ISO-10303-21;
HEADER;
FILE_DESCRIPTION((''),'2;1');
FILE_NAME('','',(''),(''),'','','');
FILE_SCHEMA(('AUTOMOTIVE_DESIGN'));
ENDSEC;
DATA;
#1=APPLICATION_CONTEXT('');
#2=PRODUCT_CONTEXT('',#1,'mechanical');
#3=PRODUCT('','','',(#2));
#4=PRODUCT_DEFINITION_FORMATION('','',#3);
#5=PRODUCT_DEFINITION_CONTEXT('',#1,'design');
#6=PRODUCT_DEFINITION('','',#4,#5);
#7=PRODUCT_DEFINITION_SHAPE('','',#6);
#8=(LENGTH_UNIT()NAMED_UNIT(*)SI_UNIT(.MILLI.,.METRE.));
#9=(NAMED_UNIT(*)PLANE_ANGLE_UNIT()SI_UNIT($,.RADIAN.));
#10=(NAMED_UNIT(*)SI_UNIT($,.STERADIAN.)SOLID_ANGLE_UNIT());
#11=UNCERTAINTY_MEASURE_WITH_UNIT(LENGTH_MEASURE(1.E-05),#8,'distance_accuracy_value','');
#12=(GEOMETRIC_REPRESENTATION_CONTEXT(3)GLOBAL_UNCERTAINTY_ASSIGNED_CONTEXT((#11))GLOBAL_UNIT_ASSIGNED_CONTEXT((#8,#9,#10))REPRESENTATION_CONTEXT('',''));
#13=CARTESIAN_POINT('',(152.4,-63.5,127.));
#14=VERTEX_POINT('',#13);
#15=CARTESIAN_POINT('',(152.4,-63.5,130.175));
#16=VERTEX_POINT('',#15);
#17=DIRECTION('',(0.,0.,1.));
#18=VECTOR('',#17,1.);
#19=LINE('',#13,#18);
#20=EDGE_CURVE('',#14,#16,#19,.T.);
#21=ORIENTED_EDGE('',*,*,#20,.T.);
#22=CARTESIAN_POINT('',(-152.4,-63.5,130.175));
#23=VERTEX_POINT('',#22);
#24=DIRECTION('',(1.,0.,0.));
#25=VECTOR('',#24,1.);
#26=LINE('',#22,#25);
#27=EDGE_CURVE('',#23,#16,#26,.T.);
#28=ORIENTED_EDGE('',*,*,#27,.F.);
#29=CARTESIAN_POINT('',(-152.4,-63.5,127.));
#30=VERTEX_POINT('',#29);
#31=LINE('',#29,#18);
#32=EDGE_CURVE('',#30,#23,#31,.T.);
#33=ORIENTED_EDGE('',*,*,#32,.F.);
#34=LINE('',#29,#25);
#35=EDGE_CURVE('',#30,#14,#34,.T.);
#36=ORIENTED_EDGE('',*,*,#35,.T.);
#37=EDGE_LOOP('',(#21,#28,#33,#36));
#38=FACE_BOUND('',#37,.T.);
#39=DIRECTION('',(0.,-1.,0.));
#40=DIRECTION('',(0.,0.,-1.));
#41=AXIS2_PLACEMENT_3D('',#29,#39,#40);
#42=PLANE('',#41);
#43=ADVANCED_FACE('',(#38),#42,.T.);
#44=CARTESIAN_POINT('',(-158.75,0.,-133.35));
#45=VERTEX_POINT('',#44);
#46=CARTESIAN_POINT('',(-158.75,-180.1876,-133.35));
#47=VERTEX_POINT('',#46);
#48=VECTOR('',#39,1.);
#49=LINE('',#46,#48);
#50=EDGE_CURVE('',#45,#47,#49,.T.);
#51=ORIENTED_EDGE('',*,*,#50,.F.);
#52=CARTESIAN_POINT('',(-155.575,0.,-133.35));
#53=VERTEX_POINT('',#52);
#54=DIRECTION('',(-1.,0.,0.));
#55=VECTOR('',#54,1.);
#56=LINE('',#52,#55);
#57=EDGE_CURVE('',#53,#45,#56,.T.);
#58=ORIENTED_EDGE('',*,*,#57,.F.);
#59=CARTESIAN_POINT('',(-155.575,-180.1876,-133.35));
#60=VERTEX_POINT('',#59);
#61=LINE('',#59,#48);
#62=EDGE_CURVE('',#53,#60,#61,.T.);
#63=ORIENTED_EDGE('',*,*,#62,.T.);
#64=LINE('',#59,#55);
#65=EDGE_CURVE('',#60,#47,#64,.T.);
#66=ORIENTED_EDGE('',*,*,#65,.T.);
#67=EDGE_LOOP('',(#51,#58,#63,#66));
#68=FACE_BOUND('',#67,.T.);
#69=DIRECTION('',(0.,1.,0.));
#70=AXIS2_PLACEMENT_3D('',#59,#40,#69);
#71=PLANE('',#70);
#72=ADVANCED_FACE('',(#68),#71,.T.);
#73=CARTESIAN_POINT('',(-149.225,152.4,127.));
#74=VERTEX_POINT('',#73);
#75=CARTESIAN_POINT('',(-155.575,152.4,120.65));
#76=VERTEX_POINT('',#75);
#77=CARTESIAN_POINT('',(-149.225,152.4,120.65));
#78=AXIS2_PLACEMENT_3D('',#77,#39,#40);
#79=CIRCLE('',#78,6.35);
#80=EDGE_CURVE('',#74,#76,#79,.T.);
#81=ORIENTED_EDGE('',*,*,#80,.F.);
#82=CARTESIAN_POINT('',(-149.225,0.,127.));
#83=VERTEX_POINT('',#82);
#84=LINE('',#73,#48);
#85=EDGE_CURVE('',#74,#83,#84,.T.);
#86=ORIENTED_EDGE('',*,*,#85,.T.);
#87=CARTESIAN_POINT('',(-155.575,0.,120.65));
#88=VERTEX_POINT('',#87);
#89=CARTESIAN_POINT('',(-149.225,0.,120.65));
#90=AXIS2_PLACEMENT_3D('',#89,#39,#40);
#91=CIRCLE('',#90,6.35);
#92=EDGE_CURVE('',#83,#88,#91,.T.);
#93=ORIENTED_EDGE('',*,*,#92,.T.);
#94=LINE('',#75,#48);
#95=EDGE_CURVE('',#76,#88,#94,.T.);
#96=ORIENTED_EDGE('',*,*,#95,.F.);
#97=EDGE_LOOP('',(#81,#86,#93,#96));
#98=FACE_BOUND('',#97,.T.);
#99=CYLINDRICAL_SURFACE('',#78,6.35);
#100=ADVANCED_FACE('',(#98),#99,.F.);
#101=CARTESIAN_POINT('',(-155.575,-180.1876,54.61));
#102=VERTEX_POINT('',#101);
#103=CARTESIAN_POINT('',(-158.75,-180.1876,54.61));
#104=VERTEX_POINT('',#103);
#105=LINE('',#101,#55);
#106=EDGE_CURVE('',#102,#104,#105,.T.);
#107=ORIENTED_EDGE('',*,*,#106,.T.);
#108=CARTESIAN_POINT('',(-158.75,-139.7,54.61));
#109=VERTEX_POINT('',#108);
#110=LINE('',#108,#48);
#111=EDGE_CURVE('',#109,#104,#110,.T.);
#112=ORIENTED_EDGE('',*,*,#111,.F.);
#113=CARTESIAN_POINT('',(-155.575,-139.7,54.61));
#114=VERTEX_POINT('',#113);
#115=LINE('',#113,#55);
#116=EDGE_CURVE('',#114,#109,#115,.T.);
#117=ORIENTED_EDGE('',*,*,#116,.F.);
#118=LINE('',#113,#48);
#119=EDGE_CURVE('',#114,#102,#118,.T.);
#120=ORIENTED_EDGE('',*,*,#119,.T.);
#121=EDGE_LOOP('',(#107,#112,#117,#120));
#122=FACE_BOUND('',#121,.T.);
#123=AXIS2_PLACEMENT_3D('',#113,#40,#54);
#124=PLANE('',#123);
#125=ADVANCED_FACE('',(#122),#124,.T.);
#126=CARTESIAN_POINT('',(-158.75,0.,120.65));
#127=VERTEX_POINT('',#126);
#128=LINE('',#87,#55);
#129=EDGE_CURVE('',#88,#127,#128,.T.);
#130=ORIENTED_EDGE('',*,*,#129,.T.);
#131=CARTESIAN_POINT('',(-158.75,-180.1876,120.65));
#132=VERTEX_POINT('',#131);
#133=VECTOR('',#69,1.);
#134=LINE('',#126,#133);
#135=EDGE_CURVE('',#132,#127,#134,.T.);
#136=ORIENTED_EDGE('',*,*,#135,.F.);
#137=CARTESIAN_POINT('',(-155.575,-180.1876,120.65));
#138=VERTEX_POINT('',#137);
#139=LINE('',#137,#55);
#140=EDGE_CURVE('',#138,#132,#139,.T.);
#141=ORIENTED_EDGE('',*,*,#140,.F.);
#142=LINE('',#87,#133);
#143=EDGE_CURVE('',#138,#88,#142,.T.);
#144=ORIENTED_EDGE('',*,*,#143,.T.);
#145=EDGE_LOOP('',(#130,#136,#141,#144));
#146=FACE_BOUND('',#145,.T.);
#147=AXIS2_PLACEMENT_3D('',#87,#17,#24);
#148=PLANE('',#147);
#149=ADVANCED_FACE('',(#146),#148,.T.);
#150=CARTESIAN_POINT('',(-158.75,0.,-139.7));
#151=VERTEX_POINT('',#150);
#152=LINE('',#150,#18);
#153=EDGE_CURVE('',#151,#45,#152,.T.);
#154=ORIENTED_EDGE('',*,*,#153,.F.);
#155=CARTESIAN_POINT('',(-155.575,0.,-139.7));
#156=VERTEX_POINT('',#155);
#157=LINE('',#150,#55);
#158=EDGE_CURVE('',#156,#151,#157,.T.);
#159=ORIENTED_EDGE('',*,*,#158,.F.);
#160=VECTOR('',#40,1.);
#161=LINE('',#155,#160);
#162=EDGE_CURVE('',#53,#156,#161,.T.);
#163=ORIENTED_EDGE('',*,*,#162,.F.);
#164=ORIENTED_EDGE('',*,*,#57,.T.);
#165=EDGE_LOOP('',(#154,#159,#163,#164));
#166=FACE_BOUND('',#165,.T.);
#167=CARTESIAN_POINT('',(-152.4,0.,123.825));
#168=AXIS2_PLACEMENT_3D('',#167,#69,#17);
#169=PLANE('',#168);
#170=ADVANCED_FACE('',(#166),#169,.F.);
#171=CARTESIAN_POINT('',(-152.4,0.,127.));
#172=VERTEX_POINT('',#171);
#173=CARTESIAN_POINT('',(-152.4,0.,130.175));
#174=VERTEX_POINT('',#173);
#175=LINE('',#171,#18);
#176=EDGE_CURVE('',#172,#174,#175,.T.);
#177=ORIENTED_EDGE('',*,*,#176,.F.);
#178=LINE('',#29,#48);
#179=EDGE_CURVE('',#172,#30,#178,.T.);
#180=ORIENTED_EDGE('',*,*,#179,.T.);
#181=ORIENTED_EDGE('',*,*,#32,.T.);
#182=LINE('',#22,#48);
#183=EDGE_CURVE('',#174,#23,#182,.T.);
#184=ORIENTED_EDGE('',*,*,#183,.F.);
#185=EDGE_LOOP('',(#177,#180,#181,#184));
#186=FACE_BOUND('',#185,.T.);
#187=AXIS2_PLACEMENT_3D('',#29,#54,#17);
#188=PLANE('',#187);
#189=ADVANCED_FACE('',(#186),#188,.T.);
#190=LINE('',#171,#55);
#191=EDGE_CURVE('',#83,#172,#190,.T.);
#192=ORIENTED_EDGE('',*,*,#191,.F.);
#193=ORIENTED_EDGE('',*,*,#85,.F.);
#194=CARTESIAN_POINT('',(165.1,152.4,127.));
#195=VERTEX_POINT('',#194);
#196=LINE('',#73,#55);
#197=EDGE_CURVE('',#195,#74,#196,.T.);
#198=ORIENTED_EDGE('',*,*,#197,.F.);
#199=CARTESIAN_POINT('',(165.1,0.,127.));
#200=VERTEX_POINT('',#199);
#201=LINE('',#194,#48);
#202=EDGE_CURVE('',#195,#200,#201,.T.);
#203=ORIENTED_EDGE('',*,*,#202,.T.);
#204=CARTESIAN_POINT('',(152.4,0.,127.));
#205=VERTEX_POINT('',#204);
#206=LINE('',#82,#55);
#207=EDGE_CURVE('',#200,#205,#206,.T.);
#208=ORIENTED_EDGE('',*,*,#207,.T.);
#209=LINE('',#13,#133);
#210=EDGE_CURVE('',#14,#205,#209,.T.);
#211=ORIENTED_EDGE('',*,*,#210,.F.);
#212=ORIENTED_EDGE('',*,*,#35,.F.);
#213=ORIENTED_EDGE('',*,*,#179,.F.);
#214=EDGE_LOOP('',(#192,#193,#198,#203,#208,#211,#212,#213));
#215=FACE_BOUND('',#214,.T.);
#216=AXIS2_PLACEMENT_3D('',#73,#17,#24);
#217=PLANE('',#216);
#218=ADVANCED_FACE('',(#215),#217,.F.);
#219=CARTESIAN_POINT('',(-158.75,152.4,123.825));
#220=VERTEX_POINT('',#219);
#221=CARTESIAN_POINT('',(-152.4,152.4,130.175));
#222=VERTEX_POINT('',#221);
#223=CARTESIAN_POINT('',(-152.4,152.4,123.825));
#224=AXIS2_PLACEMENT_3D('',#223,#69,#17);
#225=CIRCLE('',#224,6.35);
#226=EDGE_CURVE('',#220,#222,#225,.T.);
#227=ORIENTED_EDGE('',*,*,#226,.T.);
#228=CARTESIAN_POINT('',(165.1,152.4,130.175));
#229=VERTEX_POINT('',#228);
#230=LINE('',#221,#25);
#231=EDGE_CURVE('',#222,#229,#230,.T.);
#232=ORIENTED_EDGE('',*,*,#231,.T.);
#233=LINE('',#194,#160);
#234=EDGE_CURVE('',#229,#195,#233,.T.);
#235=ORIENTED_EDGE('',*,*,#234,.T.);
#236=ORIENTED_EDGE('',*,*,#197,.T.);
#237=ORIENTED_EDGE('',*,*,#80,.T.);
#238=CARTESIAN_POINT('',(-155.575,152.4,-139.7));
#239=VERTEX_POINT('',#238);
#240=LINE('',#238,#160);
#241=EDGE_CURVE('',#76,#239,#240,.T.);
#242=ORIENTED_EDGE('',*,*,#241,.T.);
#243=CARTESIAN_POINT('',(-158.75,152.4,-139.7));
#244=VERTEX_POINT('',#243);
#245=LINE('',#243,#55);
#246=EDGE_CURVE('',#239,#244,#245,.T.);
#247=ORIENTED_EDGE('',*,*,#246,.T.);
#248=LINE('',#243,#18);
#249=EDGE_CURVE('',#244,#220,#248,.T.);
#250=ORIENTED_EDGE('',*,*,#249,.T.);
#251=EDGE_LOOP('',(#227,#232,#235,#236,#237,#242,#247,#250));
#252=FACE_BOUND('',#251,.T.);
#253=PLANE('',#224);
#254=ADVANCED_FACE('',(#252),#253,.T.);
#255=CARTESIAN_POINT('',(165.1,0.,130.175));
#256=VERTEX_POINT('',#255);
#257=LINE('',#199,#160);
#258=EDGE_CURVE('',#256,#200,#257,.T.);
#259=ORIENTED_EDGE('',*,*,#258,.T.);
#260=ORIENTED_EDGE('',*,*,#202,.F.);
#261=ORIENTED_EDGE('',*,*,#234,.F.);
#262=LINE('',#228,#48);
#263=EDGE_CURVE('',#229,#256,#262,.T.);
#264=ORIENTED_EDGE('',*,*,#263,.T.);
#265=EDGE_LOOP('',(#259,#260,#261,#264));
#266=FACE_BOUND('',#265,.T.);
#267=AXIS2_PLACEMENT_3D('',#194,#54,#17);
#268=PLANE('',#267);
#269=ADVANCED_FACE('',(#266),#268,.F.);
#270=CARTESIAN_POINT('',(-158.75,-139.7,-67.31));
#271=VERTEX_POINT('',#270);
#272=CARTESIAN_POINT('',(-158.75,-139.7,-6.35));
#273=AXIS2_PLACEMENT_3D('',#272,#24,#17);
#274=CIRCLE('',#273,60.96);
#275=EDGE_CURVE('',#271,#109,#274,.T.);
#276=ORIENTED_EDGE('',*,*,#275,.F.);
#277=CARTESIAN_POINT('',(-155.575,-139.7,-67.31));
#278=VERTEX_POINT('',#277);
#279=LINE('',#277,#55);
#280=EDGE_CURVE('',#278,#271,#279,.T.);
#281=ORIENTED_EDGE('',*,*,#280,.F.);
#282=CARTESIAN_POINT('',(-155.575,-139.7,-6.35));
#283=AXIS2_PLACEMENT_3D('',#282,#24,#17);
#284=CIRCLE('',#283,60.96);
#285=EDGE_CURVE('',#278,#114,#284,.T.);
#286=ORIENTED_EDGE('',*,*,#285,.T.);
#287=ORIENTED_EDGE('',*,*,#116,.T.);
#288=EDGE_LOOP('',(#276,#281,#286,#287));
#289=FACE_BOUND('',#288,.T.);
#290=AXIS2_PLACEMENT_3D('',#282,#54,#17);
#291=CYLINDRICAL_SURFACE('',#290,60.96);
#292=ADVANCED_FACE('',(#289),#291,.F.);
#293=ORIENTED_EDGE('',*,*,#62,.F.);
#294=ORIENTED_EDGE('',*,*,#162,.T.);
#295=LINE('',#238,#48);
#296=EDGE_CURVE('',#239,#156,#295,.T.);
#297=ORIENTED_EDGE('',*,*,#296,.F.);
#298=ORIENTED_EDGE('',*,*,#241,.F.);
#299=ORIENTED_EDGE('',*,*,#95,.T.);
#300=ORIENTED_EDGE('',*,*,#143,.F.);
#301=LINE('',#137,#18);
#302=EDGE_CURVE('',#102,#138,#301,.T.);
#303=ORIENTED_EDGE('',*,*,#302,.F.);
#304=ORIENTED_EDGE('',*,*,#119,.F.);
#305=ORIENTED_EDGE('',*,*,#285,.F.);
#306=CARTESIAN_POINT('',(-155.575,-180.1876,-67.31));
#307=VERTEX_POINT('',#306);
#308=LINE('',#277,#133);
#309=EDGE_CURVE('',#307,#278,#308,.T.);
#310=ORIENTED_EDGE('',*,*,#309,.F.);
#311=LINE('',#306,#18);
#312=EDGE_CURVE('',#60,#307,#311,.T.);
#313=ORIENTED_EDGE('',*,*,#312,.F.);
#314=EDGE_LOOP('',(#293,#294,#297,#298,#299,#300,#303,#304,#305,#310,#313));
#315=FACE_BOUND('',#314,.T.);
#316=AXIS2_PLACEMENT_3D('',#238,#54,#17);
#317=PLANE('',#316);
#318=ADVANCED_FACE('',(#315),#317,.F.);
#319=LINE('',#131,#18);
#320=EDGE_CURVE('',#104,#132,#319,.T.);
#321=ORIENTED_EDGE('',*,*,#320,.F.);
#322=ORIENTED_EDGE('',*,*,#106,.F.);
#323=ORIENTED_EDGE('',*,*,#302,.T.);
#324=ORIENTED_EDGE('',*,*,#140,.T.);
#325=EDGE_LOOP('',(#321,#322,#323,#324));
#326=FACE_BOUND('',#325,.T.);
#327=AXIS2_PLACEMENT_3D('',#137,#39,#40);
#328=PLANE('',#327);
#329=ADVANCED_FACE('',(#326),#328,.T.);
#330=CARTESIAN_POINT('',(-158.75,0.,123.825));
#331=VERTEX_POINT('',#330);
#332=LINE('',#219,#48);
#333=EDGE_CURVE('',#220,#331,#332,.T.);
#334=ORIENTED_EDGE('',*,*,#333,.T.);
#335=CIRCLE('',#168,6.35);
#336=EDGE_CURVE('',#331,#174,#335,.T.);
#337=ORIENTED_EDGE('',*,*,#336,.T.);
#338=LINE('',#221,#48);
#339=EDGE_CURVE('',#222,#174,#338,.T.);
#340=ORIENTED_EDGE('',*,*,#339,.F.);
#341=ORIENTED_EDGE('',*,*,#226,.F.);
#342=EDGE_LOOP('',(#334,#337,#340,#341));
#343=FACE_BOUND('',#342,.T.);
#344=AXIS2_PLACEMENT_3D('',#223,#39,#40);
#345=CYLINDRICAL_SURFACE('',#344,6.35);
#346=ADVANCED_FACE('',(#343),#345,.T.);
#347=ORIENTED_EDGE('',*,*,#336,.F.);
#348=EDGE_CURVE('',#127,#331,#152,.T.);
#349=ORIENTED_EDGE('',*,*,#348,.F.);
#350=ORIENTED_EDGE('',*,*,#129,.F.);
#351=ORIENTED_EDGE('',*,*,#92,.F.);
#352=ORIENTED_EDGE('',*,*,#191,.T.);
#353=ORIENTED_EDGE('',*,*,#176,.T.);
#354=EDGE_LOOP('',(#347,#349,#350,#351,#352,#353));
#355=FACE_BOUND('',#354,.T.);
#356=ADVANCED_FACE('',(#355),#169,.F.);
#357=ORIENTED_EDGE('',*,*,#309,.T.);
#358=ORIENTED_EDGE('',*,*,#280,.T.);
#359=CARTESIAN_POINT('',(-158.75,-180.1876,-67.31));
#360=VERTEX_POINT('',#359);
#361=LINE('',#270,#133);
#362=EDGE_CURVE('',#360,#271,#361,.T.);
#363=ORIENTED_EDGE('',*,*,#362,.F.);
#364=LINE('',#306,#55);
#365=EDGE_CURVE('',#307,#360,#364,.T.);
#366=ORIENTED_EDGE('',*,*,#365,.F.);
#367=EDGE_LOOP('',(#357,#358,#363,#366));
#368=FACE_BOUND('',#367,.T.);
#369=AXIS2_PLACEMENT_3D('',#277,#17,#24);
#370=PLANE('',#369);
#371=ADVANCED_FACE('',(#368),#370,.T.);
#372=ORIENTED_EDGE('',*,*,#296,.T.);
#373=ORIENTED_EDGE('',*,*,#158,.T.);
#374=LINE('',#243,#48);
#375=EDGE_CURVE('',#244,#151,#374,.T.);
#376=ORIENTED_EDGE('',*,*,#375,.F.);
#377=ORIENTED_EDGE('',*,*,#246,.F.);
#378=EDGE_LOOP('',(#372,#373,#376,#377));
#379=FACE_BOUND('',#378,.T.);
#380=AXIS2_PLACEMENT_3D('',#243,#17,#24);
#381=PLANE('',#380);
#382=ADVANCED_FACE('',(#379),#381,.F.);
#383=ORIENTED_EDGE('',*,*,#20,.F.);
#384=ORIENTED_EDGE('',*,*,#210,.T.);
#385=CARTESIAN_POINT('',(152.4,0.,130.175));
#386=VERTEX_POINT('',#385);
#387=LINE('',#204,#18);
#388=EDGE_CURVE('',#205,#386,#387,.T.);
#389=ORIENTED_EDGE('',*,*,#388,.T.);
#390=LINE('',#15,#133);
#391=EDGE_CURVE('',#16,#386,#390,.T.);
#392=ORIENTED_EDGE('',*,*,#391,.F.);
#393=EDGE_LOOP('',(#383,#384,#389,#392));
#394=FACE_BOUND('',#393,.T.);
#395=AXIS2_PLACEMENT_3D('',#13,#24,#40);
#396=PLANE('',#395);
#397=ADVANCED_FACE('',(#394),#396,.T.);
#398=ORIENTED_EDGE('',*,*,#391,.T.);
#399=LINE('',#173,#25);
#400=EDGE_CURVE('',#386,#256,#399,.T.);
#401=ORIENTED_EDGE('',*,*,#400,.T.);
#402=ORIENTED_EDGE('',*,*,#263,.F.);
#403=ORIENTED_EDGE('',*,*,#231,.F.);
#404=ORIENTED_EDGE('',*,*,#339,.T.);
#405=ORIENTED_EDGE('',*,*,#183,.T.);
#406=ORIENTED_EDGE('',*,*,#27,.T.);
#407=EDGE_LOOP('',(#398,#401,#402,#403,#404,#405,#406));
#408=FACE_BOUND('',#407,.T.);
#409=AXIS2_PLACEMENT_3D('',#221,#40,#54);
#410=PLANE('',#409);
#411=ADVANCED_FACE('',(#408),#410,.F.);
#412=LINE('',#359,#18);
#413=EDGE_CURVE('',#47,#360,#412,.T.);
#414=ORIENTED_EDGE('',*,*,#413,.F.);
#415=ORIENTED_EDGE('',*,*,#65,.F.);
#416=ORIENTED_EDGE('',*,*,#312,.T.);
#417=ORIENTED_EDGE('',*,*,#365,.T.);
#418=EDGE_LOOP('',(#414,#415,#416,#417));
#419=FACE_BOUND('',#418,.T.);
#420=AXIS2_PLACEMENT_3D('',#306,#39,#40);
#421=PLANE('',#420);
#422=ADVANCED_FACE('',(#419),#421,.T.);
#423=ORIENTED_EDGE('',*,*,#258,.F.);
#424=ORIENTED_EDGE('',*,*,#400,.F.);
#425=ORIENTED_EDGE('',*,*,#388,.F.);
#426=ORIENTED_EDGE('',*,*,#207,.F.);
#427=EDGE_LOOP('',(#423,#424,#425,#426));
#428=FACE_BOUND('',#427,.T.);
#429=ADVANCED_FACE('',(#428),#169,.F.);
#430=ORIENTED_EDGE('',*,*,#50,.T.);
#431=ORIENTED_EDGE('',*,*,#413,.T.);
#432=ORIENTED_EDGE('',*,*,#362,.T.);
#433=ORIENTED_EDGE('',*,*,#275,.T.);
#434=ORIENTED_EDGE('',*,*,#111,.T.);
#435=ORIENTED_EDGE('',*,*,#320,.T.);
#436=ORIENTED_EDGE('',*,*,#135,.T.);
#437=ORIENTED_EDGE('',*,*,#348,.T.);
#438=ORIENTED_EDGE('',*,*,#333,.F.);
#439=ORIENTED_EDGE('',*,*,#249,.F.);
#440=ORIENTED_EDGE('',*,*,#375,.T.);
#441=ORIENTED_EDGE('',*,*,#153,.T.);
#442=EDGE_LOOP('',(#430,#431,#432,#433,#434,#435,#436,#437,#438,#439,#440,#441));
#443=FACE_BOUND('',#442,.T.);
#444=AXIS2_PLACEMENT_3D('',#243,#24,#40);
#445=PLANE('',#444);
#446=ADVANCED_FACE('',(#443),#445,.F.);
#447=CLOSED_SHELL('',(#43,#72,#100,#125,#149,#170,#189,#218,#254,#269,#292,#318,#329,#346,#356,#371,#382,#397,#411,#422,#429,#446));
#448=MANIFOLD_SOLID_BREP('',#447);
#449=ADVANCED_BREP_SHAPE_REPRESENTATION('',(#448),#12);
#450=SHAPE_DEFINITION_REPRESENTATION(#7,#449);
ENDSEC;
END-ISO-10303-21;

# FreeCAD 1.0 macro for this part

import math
import FreeCAD as App
import Part
import Sketcher
from FreeCAD import Vector
Q = App.Units.Quantity


def add_polygon(sketch, points):
    """Adds a closed chain of lines whose ends are joined by coincident constraints."""
    first, n = sketch.GeometryCount, len(points)
    for a, b in zip(points, points[1:] + points[:1]):
        sketch.addGeometry(Part.LineSegment(App.Vector(*a, 0), App.Vector(*b, 0)), False)
    for i in range(n):
        sketch.addConstraint(Sketcher.Constraint("Coincident", first + i, 2, first + (i + 1) % n, 1))

doc = App.newDocument("Part")
body = doc.addObject("PartDesign::Body", "Body")

sketch1 = doc.addObject("Sketcher::SketchObject", "Sketch")
body.addObject(sketch1)
sketch1.AttachmentSupport = (doc.XZ_Plane, [""])
sketch1.MapMode = "FlatFace"
sketch1.addGeometry([
    Part.LineSegment(Vector(165.1, 127, 0), Vector(-149.2, 127, 0)),
    Part.ArcOfCircle(Part.Circle(Vector(-149.2, 120.7, 0), Vector(0, 0, 1), 6.3), math.radians(90), math.radians(180)),
    Part.LineSegment(Vector(-155.6, 120.7, 0), Vector(-155.6, -139.7, 0)),
    Part.LineSegment(Vector(-155.6, -139.7, 0), Vector(-158.8, -139.7, 0)),
    Part.LineSegment(Vector(-158.8, -139.7, 0), Vector(-158.8, 123.8, 0)),
    Part.ArcOfCircle(Part.Circle(Vector(-152.4, 123.8, 0), Vector(0, 0, 1), 6.3), math.radians(90), math.radians(180)),
    Part.LineSegment(Vector(-152.4, 130.2, 0), Vector(165.1, 130.2, 0)),
    Part.LineSegment(Vector(165.1, 130.2, 0), Vector(165.1, 127, 0)),
], False)
sketch1.addConstraint([
    Sketcher.Constraint("Tangent", 0, 2, 1, 1),
    Sketcher.Constraint("Tangent", 1, 2, 2, 1),
    Sketcher.Constraint("Coincident", 2, 2, 3, 1),
    Sketcher.Constraint("Coincident", 3, 2, 4, 1),
    Sketcher.Constraint("Tangent", 4, 2, 5, 2),
    Sketcher.Constraint("Tangent", 5, 1, 6, 1),
    Sketcher.Constraint("Coincident", 6, 2, 7, 1),
    Sketcher.Constraint("Coincident", 7, 2, 0, 1),
    Sketcher.Constraint("Horizontal", 0),
    Sketcher.Constraint("Vertical", 2),
    Sketcher.Constraint("Horizontal", 3),
    Sketcher.Constraint("Vertical", 4),
    Sketcher.Constraint("Horizontal", 6),
    Sketcher.Constraint("Vertical", 7),
    Sketcher.Constraint("Equal", 1, 5),
    Sketcher.Constraint("Equal", 3, 7),
    Sketcher.Constraint("Radius", 1, Q("0.25 in")),
    Sketcher.Constraint("DistanceX", 6, 1, 6, 2, Q("12.5 in")),
    Sketcher.Constraint("DistanceX", 5, 3, -1, 1, Q("6 in")),
    Sketcher.Constraint("DistanceY", -1, 1, 0, 2, Q("5 in")),
    Sketcher.Constraint("DistanceY", 2, 2, 2, 1, Q("10.25 in")),
    Sketcher.Constraint("DistanceX", 0, 2, 0, 1, Q("12.375 in")),
])
pad1 = doc.addObject("PartDesign::Pad", "Pad")
body.addObject(pad1)
pad1.Profile = sketch1
pad1.Length = Q("6 in")
pad1.Reversed = True

sketch2 = doc.addObject("Sketcher::SketchObject", "Sketch001")
body.addObject(sketch2)
sketch2.AttachmentSupport = (doc.XY_Plane, [""])
sketch2.MapMode = "FlatFace"
sketch2.AttachmentOffset = App.Placement(Vector(0, 0, 5.125 * 25.4), App.Rotation())
add_polygon(sketch2, [(-152, 0), (-152, -64), (152, -64), (152, 0)])
sketch2.addConstraint([
    Sketcher.Constraint("Vertical", 0),
    Sketcher.Constraint("Horizontal", 1),
    Sketcher.Constraint("Vertical", 2),
    Sketcher.Constraint("Horizontal", 3),
    Sketcher.Constraint("Symmetric", 2, 2, 3, 2, -1, 1),
    Sketcher.Constraint("DistanceX", 1, 1, 1, 2, Q("12 in")),
    Sketcher.Constraint("DistanceY", 0, 2, 0, 1, Q("2.5 in")),
])
pad2 = doc.addObject("PartDesign::Pad", "Pad001")
body.addObject(pad2)
pad2.Profile = sketch2
pad2.Length = Q("0.125 in")
pad2.Reversed = True

sketch3 = doc.addObject("Sketcher::SketchObject", "Sketch002")
body.addObject(sketch3)
sketch3.AttachmentSupport = (doc.YZ_Plane, [""])
sketch3.MapMode = "FlatFace"
sketch3.AttachmentOffset = App.Placement(Vector(0, 0, -6.25 * 25.4), App.Rotation())
sketch3.addGeometry([
    Part.LineSegment(Vector(0, -133, 0), Vector(-180, -133, 0)),
    Part.LineSegment(Vector(-180, -133, 0), Vector(-180, -67, 0)),
    Part.LineSegment(Vector(-180, -67, 0), Vector(-140, -67, 0)),
    Part.ArcOfCircle(Part.Circle(Vector(-140, -6, 0), Vector(0, 0, 1), 61), math.radians(-90), math.radians(90)),
    Part.LineSegment(Vector(-140, 55, 0), Vector(-180, 55, 0)),
    Part.LineSegment(Vector(-180, 55, 0), Vector(-180, 121, 0)),
    Part.LineSegment(Vector(-180, 121, 0), Vector(0, 121, 0)),
    Part.LineSegment(Vector(0, 121, 0), Vector(0, -133, 0)),
], False)
sketch3.addConstraint([
    Sketcher.Constraint("Coincident", 0, 2, 1, 1),
    Sketcher.Constraint("Coincident", 1, 2, 2, 1),
    Sketcher.Constraint("Tangent", 2, 2, 3, 1),
    Sketcher.Constraint("Tangent", 3, 2, 4, 1),
    Sketcher.Constraint("Coincident", 4, 2, 5, 1),
    Sketcher.Constraint("Coincident", 5, 2, 6, 1),
    Sketcher.Constraint("Coincident", 6, 2, 7, 1),
    Sketcher.Constraint("Coincident", 7, 2, 0, 1),
    Sketcher.Constraint("Horizontal", 0),
    Sketcher.Constraint("Vertical", 1),
    Sketcher.Constraint("Horizontal", 2),
    Sketcher.Constraint("Horizontal", 4),
    Sketcher.Constraint("Vertical", 5),
    Sketcher.Constraint("Horizontal", 6),
    Sketcher.Constraint("Vertical", 7),
    Sketcher.Constraint("PointOnObject", 6, 2, -2),
    Sketcher.Constraint("Vertical", 1, 2, 4, 2),
    Sketcher.Constraint("Equal", 1, 5),
    Sketcher.Constraint("Radius", 3, Q("2.4 in")),
    Sketcher.Constraint("DistanceY", 7, 2, 7, 1, Q("10 in")),
    Sketcher.Constraint("DistanceX", 3, 3, -1, 1, Q("5.5 in")),
    Sketcher.Constraint("DistanceX", 0, 2, 0, 1, Q("7.094 in")),
    Sketcher.Constraint("DistanceY", 3, 3, -1, 1, Q("0.25 in")),
])
pad3 = doc.addObject("PartDesign::Pad", "Pad002")
body.addObject(pad3)
pad3.Profile = sketch3
pad3.Length = Q("0.125 in")

doc.recompute()
